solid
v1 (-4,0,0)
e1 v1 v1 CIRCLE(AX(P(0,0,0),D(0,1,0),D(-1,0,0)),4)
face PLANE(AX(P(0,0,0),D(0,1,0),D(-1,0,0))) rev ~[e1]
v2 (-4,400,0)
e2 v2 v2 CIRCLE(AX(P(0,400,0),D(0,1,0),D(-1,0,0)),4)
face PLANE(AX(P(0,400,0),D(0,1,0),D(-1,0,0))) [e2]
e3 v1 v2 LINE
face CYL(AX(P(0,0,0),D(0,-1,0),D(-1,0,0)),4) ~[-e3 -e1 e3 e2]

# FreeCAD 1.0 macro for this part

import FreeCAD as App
import Part
import Sketcher
from FreeCAD import Vector
Q = App.Units.Quantity

doc = App.newDocument("Part")
params = doc.addObject("Spreadsheet::Sheet", "Params")
for row, (alias, value) in enumerate([
    ("sketch1_diameter", "8 mm"),
    ("pad1_length", "400 mm"),
], start=1):
    params.set(f"A{row}", alias)
    params.set(f"B{row}", "=" + value)
    params.setAlias(f"B{row}", alias)

body = doc.addObject("PartDesign::Body", "Body")

sketch1 = body.newObject("Sketcher::SketchObject", "Sketch")
sketch1.AttachmentSupport = (doc.getObject("XZ_Plane"), [""])
sketch1.MapMode = "FlatFace"
sketch1.addGeometry(Part.Circle(Vector(0, 0, 0), Vector(0, 0, 1), 4), False)
sketch1.addConstraint([
    Sketcher.Constraint("Coincident", 0, 3, -1, 1),
    Sketcher.Constraint("Diameter", 0, Q("8 mm")),
])
sketch1.setExpression("Constraints[1]", "Params.sketch1_diameter")
pad1 = body.newObject("PartDesign::Pad", "Pad")
pad1.Profile = sketch1
pad1.setExpression("Length", "Params.pad1_length")
pad1.Reversed = True

doc.recompute()
